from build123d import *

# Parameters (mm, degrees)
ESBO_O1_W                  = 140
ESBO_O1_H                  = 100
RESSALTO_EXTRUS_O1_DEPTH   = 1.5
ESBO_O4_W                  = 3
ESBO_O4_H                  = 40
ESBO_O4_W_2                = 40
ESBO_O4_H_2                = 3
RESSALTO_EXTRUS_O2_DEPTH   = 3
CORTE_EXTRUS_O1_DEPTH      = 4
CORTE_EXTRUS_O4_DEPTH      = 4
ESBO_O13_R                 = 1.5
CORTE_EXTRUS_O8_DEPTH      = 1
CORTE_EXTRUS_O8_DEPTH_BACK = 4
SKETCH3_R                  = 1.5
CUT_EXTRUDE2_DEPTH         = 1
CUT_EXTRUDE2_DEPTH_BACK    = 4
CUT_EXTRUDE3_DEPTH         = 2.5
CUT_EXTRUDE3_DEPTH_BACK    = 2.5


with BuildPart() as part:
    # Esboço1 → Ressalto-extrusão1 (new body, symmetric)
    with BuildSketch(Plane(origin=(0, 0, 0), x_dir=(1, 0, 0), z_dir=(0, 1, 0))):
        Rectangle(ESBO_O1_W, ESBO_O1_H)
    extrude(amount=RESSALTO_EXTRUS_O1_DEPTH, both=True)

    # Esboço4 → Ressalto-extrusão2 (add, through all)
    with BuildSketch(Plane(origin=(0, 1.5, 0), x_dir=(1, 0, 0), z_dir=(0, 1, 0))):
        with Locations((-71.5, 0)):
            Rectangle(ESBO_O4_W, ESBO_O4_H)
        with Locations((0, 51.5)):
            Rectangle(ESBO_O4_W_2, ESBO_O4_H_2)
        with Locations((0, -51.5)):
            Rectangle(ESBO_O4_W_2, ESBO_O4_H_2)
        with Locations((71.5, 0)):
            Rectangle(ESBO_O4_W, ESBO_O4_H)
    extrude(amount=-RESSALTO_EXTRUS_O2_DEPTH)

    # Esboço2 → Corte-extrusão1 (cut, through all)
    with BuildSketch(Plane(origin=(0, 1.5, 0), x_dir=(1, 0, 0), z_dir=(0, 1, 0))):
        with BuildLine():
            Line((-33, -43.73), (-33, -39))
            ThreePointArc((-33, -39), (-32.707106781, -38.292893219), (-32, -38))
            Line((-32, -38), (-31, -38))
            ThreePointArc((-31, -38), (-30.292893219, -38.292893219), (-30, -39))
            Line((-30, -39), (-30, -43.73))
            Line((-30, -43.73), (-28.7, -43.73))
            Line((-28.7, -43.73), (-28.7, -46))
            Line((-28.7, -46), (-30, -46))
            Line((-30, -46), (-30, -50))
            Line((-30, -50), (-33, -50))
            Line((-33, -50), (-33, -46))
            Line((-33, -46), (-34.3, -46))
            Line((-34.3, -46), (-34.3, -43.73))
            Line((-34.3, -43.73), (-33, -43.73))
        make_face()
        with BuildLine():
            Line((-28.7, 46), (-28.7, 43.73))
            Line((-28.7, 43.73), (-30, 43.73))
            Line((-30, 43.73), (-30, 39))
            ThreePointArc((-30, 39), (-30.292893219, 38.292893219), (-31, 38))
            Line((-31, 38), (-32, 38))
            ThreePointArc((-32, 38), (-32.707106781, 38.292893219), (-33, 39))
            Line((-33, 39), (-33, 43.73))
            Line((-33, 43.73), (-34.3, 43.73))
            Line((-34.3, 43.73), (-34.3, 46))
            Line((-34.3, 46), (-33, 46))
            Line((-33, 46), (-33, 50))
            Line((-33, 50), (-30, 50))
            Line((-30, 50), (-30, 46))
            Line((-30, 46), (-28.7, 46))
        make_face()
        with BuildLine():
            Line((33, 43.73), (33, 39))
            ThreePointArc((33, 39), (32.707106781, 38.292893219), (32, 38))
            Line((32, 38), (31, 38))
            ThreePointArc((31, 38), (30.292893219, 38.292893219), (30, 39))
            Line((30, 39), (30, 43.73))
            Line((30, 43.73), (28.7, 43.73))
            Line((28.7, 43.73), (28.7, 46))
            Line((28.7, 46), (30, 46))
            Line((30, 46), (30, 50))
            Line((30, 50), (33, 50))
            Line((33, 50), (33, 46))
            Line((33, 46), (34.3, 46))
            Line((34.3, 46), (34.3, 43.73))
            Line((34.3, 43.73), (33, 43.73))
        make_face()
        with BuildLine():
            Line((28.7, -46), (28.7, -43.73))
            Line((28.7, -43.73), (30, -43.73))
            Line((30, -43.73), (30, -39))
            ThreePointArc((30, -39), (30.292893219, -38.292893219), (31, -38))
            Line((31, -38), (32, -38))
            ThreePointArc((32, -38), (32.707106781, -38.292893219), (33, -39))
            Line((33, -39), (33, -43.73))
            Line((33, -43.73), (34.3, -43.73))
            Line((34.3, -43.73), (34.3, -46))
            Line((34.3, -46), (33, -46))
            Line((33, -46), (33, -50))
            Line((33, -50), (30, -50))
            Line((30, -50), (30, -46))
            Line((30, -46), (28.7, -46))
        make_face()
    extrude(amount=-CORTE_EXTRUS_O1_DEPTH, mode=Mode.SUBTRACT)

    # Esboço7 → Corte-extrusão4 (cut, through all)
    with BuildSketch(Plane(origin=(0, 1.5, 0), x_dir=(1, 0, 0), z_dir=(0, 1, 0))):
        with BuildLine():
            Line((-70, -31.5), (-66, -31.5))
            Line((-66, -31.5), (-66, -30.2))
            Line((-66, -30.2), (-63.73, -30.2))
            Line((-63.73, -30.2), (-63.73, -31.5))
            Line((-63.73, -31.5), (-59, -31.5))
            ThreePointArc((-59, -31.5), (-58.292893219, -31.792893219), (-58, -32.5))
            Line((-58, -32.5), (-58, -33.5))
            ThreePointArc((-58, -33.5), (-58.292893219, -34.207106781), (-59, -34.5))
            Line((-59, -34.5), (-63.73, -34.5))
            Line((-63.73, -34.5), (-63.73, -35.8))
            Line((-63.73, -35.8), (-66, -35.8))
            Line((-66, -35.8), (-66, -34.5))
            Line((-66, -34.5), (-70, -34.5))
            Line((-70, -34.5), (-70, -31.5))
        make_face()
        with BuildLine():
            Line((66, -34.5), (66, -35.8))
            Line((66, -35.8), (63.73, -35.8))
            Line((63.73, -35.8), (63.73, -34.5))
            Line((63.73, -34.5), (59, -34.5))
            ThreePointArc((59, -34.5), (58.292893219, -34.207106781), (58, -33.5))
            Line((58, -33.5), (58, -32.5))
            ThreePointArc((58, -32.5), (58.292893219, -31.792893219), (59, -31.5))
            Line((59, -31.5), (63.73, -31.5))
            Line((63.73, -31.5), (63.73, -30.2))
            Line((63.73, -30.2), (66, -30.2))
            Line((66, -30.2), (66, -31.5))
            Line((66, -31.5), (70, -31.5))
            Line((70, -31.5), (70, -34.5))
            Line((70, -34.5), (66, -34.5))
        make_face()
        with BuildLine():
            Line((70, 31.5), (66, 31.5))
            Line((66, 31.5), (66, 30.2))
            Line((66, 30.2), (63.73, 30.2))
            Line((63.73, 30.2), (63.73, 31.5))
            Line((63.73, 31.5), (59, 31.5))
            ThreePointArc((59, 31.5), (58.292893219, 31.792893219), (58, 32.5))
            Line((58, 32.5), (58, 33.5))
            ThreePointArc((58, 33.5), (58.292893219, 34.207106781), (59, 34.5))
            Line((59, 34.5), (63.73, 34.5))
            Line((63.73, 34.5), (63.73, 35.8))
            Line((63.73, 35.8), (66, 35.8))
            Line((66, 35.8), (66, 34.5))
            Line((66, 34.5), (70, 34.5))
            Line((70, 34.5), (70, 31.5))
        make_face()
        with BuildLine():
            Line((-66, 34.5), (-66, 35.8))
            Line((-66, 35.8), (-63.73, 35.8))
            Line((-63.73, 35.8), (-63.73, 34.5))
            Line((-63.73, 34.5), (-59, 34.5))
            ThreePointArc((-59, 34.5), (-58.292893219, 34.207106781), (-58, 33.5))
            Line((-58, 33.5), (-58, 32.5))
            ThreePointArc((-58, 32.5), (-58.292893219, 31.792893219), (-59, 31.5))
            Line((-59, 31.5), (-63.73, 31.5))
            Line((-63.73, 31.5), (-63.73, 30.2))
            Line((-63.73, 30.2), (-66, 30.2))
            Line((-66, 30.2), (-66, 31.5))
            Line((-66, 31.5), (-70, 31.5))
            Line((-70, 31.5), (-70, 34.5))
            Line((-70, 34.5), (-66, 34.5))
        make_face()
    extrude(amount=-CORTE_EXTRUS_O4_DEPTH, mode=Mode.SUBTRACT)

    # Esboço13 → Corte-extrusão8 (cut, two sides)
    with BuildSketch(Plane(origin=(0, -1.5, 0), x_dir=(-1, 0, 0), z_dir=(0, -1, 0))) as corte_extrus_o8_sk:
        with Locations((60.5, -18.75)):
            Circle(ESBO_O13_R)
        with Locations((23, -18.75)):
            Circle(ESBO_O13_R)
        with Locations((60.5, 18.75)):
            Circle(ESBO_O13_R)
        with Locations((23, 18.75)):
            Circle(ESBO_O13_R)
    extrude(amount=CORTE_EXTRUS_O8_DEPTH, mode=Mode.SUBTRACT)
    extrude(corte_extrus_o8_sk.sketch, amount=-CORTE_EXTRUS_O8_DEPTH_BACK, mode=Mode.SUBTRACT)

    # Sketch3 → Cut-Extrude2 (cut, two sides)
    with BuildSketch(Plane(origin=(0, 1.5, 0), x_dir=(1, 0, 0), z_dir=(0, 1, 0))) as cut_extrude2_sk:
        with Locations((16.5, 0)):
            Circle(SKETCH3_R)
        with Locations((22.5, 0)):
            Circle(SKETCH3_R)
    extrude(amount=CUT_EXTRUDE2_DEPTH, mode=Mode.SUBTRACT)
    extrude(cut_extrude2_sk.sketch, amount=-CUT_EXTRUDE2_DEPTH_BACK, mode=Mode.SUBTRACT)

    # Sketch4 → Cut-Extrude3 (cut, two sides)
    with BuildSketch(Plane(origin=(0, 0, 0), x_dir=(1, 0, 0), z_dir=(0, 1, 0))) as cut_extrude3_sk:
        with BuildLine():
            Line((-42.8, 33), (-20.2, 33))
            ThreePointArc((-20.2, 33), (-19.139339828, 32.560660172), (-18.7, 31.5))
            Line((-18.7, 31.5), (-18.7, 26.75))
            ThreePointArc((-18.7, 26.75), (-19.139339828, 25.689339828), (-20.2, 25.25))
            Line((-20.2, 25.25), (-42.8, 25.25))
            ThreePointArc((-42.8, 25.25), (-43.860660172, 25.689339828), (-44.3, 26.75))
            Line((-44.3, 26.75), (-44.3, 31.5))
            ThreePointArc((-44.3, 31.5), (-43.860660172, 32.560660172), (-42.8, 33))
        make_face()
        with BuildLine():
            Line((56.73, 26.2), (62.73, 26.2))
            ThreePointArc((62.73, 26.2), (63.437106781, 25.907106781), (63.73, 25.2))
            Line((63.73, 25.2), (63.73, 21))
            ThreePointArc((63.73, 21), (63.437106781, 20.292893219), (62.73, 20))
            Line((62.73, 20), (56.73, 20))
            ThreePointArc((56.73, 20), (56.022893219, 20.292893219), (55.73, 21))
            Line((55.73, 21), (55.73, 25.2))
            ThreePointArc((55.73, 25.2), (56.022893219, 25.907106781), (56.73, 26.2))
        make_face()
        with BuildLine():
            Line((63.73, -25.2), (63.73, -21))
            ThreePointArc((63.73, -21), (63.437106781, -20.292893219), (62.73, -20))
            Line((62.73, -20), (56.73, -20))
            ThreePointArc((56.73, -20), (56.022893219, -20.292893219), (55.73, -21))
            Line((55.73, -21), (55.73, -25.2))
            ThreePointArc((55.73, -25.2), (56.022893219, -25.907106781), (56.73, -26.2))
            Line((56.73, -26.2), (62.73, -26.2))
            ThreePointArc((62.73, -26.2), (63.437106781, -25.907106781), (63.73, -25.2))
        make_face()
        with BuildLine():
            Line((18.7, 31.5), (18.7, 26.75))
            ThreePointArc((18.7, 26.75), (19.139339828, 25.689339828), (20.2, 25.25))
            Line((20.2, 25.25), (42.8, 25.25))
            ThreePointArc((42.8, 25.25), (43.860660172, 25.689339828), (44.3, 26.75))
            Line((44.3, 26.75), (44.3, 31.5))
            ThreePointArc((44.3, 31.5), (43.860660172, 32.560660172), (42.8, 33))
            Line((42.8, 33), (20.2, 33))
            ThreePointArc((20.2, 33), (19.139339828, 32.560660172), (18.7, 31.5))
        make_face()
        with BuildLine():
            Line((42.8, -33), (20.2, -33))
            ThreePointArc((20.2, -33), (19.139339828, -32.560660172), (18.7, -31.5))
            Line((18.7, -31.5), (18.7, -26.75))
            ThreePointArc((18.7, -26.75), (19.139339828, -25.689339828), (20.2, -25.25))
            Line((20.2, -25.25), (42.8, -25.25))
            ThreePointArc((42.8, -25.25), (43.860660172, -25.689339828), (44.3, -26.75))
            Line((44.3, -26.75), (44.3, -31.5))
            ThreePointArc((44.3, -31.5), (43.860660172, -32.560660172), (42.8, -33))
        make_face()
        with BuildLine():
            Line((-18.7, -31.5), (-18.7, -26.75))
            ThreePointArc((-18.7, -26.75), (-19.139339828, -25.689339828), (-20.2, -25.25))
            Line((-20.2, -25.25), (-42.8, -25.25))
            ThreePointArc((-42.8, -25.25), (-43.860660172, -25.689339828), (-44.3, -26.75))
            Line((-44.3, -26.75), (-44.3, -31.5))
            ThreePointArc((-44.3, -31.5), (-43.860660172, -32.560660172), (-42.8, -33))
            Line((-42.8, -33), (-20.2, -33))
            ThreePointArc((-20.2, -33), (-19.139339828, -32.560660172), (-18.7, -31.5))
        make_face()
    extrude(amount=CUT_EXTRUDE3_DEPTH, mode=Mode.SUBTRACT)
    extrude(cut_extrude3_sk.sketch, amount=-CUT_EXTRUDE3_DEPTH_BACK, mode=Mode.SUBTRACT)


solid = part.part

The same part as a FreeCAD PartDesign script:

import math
import FreeCAD as App
import Part
import Sketcher

V = App.Vector
Q = App.Units.Quantity

doc = App.newDocument("Part")
params = doc.addObject("Spreadsheet::Sheet", "Params")
for row, (alias, value) in enumerate([
    ("sketch1_width", "140 mm"),
    ("sketch1_height", "100 mm"),
    ("pad1_length", "3 mm"),
    ("sketch2_width", "3 mm"),
    ("sketch2_width2", "40 mm"),
    ("sketch3_radius", "1 mm"),
    ("sketch3_width", "3 mm"),
    ("sketch3_height", "4 mm"),
    ("sketch3_width2", "1.3 mm"),
    ("sketch3_height2", "4.73 mm"),
    ("sketch4_radius", "1 mm"),
    ("sketch4_width", "4 mm"),
    ("sketch4_height", "3 mm"),
    ("sketch4_height2", "1.3 mm"),
    ("sketch4_width2", "2.27 mm"),
    ("sketch5_diameter", "3 mm"),
    ("sketch6_diameter", "3 mm"),
    ("sketch7_radius", "1 mm"),
    ("sketch7_radius2", "1.5 mm"),
    ("sketch7_width", "6 mm"),
    ("sketch7_width2", "22.6 mm"),
    ("sketch7_height", "4.2 mm"),
], start=1):
    params.set(f"A{row}", alias)
    params.set(f"B{row}", "=" + value)
    params.setAlias(f"B{row}", alias)

body = doc.addObject("PartDesign::Body", "Body")

sketch1 = body.newObject("Sketcher::SketchObject", "Sketch")
sketch1.AttachmentSupport = (doc.getObject("XZ_Plane"), [""])
sketch1.MapMode = "FlatFace"
sketch1.addGeometry([
    Part.LineSegment(V(-70, -50, 0), V(-70, 50, 0)),
    Part.LineSegment(V(-70, 50, 0), V(70, 50, 0)),
    Part.LineSegment(V(70, 50, 0), V(70, -50, 0)),
    Part.LineSegment(V(70, -50, 0), V(-70, -50, 0)),
], False)
sketch1.addConstraint([
    Sketcher.Constraint("Coincident", 0, 2, 1, 1),
    Sketcher.Constraint("Coincident", 1, 2, 2, 1),
    Sketcher.Constraint("Coincident", 2, 2, 3, 1),
    Sketcher.Constraint("Coincident", 3, 2, 0, 1),
    Sketcher.Constraint("Vertical", 0),
    Sketcher.Constraint("Horizontal", 1),
    Sketcher.Constraint("Vertical", 2),
    Sketcher.Constraint("Horizontal", 3),
    Sketcher.Constraint("Symmetric", 0, 2, 2, 2, -1, 1),
    Sketcher.Constraint("DistanceX", 1, 1, 1, 2, Q("140 mm")),
    Sketcher.Constraint("DistanceY", 0, 1, 0, 2, Q("100 mm")),
])
sketch1.setExpression("Constraints[9]", "Params.sketch1_width")
sketch1.setExpression("Constraints[10]", "Params.sketch1_height")
pad1 = body.newObject("PartDesign::Pad", "Pad")
pad1.Profile = sketch1
pad1.setExpression("Length", "Params.pad1_length")
pad1.Midplane = True

sketch2 = body.newObject("Sketcher::SketchObject", "Sketch001")
sketch2.AttachmentSupport = (doc.getObject("XZ_Plane"), [""])
sketch2.MapMode = "FlatFace"
sketch2.AttachmentOffset = App.Placement(V(0, 0, -1.5), App.Rotation())
sketch2.addGeometry([
    Part.LineSegment(V(-73, -20, 0), V(-73, 20, 0)),
    Part.LineSegment(V(-73, 20, 0), V(-70, 20, 0)),
    Part.LineSegment(V(-70, 20, 0), V(-70, -20, 0)),
    Part.LineSegment(V(-70, -20, 0), V(-73, -20, 0)),
    Part.LineSegment(V(-20, -53, 0), V(-20, -50, 0)),
    Part.LineSegment(V(-20, -50, 0), V(20, -50, 0)),
    Part.LineSegment(V(20, -50, 0), V(20, -53, 0)),
    Part.LineSegment(V(20, -53, 0), V(-20, -53, 0)),
    Part.LineSegment(V(-20, 50, 0), V(-20, 53, 0)),
    Part.LineSegment(V(-20, 53, 0), V(20, 53, 0)),
    Part.LineSegment(V(20, 53, 0), V(20, 50, 0)),
    Part.LineSegment(V(20, 50, 0), V(-20, 50, 0)),
    Part.LineSegment(V(70, -20, 0), V(70, 20, 0)),
    Part.LineSegment(V(70, 20, 0), V(73, 20, 0)),
    Part.LineSegment(V(73, 20, 0), V(73, -20, 0)),
    Part.LineSegment(V(73, -20, 0), V(70, -20, 0)),
], False)
sketch2.addConstraint([
    Sketcher.Constraint("Coincident", 0, 2, 1, 1),
    Sketcher.Constraint("Coincident", 1, 2, 2, 1),
    Sketcher.Constraint("Coincident", 2, 2, 3, 1),
    Sketcher.Constraint("Coincident", 3, 2, 0, 1),
    Sketcher.Constraint("Coincident", 4, 2, 5, 1),
    Sketcher.Constraint("Coincident", 5, 2, 6, 1),
    Sketcher.Constraint("Coincident", 6, 2, 7, 1),
    Sketcher.Constraint("Coincident", 7, 2, 4, 1),
    Sketcher.Constraint("Coincident", 8, 2, 9, 1),
    Sketcher.Constraint("Coincident", 9, 2, 10, 1),
    Sketcher.Constraint("Coincident", 10, 2, 11, 1),
    Sketcher.Constraint("Coincident", 11, 2, 8, 1),
    Sketcher.Constraint("Coincident", 12, 2, 13, 1),
    Sketcher.Constraint("Coincident", 13, 2, 14, 1),
    Sketcher.Constraint("Coincident", 14, 2, 15, 1),
    Sketcher.Constraint("Coincident", 15, 2, 12, 1),
    Sketcher.Constraint("Vertical", 0),
    Sketcher.Constraint("Horizontal", 1),
    Sketcher.Constraint("Vertical", 2),
    Sketcher.Constraint("Horizontal", 3),
    Sketcher.Constraint("Vertical", 4),
    Sketcher.Constraint("Horizontal", 5),
    Sketcher.Constraint("Vertical", 6),
    Sketcher.Constraint("Horizontal", 7),
    Sketcher.Constraint("Vertical", 8),
    Sketcher.Constraint("Horizontal", 9),
    Sketcher.Constraint("Vertical", 10),
    Sketcher.Constraint("Horizontal", 11),
    Sketcher.Constraint("Vertical", 12),
    Sketcher.Constraint("Horizontal", 13),
    Sketcher.Constraint("Vertical", 14),
    Sketcher.Constraint("Horizontal", 15),
    Sketcher.Constraint("Symmetric", 6, 2, 8, 2, -1, 1),
    Sketcher.Constraint("Symmetric", 4, 2, 10, 2, -1, 1),
    Sketcher.Constraint("Symmetric", 2, 2, 12, 2, -1, 1),
    Sketcher.Constraint("Symmetric", 0, 2, 14, 2, -1, 1),
    Sketcher.Constraint("Horizontal", 1, 2, 12, 2),
    Sketcher.Constraint("Vertical", 7, 2, 8, 2),
    Sketcher.Constraint("Equal", 11, 0),
    Sketcher.Constraint("Equal", 15, 4),
    Sketcher.Constraint("DistanceX", 1, 1, 1, 2, Q("3 mm")),
    Sketcher.Constraint("DistanceX", 5, 1, 5, 2, Q("40 mm")),
    Sketcher.Constraint("DistanceX", 0, 2, -1, 1, Q("73 mm")),
    Sketcher.Constraint("DistanceY", 4, 2, -1, 1, Q("50 mm")),
])
sketch2.setExpression("Constraints[40]", "Params.sketch2_width")
sketch2.setExpression("Constraints[41]", "Params.sketch2_width2")
pad2 = body.newObject("PartDesign::Pad", "Pad001")
pad2.Profile = sketch2
pad2.Type = "UpToLast"

sketch3 = body.newObject("Sketcher::SketchObject", "Sketch002")
sketch3.AttachmentSupport = (doc.getObject("XZ_Plane"), [""])
sketch3.MapMode = "FlatFace"
sketch3.AttachmentOffset = App.Placement(V(0, 0, -1.5), App.Rotation())
sketch3.addGeometry([
    Part.LineSegment(V(-33, 39, 0), V(-33, 43.7, 0)),
    Part.LineSegment(V(-33, 43.7, 0), V(-34.3, 43.7, 0)),
    Part.LineSegment(V(-34.3, 43.7, 0), V(-34.3, 46, 0)),
    Part.LineSegment(V(-34.3, 46, 0), V(-33, 46, 0)),
    Part.LineSegment(V(-33, 46, 0), V(-33, 50, 0)),
    Part.LineSegment(V(-33, 50, 0), V(-30, 50, 0)),
    Part.LineSegment(V(-30, 50, 0), V(-30, 46, 0)),
    Part.LineSegment(V(-30, 46, 0), V(-28.7, 46, 0)),
    Part.LineSegment(V(-28.7, 46, 0), V(-28.7, 43.7, 0)),
    Part.LineSegment(V(-28.7, 43.7, 0), V(-30, 43.7, 0)),
    Part.LineSegment(V(-30, 43.7, 0), V(-30, 39, 0)),
    Part.ArcOfCircle(Part.Circle(V(-31, 39, 0), V(0, 0, 1), 1), math.radians(-90), math.radians(0)),
    Part.LineSegment(V(-31, 38, 0), V(-32, 38, 0)),
    Part.ArcOfCircle(Part.Circle(V(-32, 39, 0), V(0, 0, 1), 1), math.radians(-180), math.radians(-90)),
    Part.LineSegment(V(-28.7, -43.7, 0), V(-28.7, -46, 0)),
    Part.LineSegment(V(-28.7, -46, 0), V(-30, -46, 0)),
    Part.LineSegment(V(-30, -46, 0), V(-30, -50, 0)),
    Part.LineSegment(V(-30, -50, 0), V(-33, -50, 0)),
    Part.LineSegment(V(-33, -50, 0), V(-33, -46, 0)),
    Part.LineSegment(V(-33, -46, 0), V(-34.3, -46, 0)),
    Part.LineSegment(V(-34.3, -46, 0), V(-34.3, -43.7, 0)),
    Part.LineSegment(V(-34.3, -43.7, 0), V(-33, -43.7, 0)),
    Part.LineSegment(V(-33, -43.7, 0), V(-33, -39, 0)),
    Part.ArcOfCircle(Part.Circle(V(-32, -39, 0), V(0, 0, 1), 1), math.radians(90), math.radians(180)),
    Part.LineSegment(V(-32, -38, 0), V(-31, -38, 0)),
    Part.ArcOfCircle(Part.Circle(V(-31, -39, 0), V(0, 0, 1), 1), math.radians(0), math.radians(90)),
    Part.LineSegment(V(-30, -39, 0), V(-30, -43.7, 0)),
    Part.LineSegment(V(-30, -43.7, 0), V(-28.7, -43.7, 0)),
    Part.LineSegment(V(33, -39, 0), V(33, -43.7, 0)),
    Part.LineSegment(V(33, -43.7, 0), V(34.3, -43.7, 0)),
    Part.LineSegment(V(34.3, -43.7, 0), V(34.3, -46, 0)),
    Part.LineSegment(V(34.3, -46, 0), V(33, -46, 0)),
    Part.LineSegment(V(33, -46, 0), V(33, -50, 0)),
    Part.LineSegment(V(33, -50, 0), V(30, -50, 0)),
    Part.LineSegment(V(30, -50, 0), V(30, -46, 0)),
    Part.LineSegment(V(30, -46, 0), V(28.7, -46, 0)),
    Part.LineSegment(V(28.7, -46, 0), V(28.7, -43.7, 0)),
    Part.LineSegment(V(28.7, -43.7, 0), V(30, -43.7, 0)),
    Part.LineSegment(V(30, -43.7, 0), V(30, -39, 0)),
    Part.ArcOfCircle(Part.Circle(V(31, -39, 0), V(0, 0, 1), 1), math.radians(90), math.radians(180)),
    Part.LineSegment(V(31, -38, 0), V(32, -38, 0)),
    Part.ArcOfCircle(Part.Circle(V(32, -39, 0), V(0, 0, 1), 1), math.radians(0), math.radians(90)),
    Part.LineSegment(V(28.7, 43.7, 0), V(28.7, 46, 0)),
    Part.LineSegment(V(28.7, 46, 0), V(30, 46, 0)),
    Part.LineSegment(V(30, 46, 0), V(30, 50, 0)),
    Part.LineSegment(V(30, 50, 0), V(33, 50, 0)),
    Part.LineSegment(V(33, 50, 0), V(33, 46, 0)),
    Part.LineSegment(V(33, 46, 0), V(34.3, 46, 0)),
    Part.LineSegment(V(34.3, 46, 0), V(34.3, 43.7, 0)),
    Part.LineSegment(V(34.3, 43.7, 0), V(33, 43.7, 0)),
    Part.LineSegment(V(33, 43.7, 0), V(33, 39, 0)),
    Part.ArcOfCircle(Part.Circle(V(32, 39, 0), V(0, 0, 1), 1), math.radians(-90), math.radians(0)),
    Part.LineSegment(V(32, 38, 0), V(31, 38, 0)),
    Part.ArcOfCircle(Part.Circle(V(31, 39, 0), V(0, 0, 1), 1), math.radians(-180), math.radians(-90)),
    Part.LineSegment(V(30, 39, 0), V(30, 43.7, 0)),
    Part.LineSegment(V(30, 43.7, 0), V(28.7, 43.7, 0)),
], False)
sketch3.addConstraint([
    Sketcher.Constraint("Coincident", 0, 2, 1, 1),
    Sketcher.Constraint("Coincident", 1, 2, 2, 1),
    Sketcher.Constraint("Coincident", 2, 2, 3, 1),
    Sketcher.Constraint("Coincident", 3, 2, 4, 1),
    Sketcher.Constraint("Coincident", 4, 2, 5, 1),
    Sketcher.Constraint("Coincident", 5, 2, 6, 1),
    Sketcher.Constraint("Coincident", 6, 2, 7, 1),
    Sketcher.Constraint("Coincident", 7, 2, 8, 1),
    Sketcher.Constraint("Coincident", 8, 2, 9, 1),
    Sketcher.Constraint("Coincident", 9, 2, 10, 1),
    Sketcher.Constraint("Tangent", 10, 2, 11, 2),
    Sketcher.Constraint("Tangent", 11, 1, 12, 1),
    Sketcher.Constraint("Tangent", 12, 2, 13, 2),
    Sketcher.Constraint("Tangent", 13, 1, 0, 1),
    Sketcher.Constraint("Coincident", 14, 2, 15, 1),
    Sketcher.Constraint("Coincident", 15, 2, 16, 1),
    Sketcher.Constraint("Coincident", 16, 2, 17, 1),
    Sketcher.Constraint("Coincident", 17, 2, 18, 1),
    Sketcher.Constraint("Coincident", 18, 2, 19, 1),
    Sketcher.Constraint("Coincident", 19, 2, 20, 1),
    Sketcher.Constraint("Coincident", 20, 2, 21, 1),
    Sketcher.Constraint("Coincident", 21, 2, 22, 1),
    Sketcher.Constraint("Tangent", 22, 2, 23, 2),
    Sketcher.Constraint("Tangent", 23, 1, 24, 1),
    Sketcher.Constraint("Tangent", 24, 2, 25, 2),
    Sketcher.Constraint("Tangent", 25, 1, 26, 1),
    Sketcher.Constraint("Coincident", 26, 2, 27, 1),
    Sketcher.Constraint("Coincident", 27, 2, 14, 1),
    Sketcher.Constraint("Coincident", 28, 2, 29, 1),
    Sketcher.Constraint("Coincident", 29, 2, 30, 1),
    Sketcher.Constraint("Coincident", 30, 2, 31, 1),
    Sketcher.Constraint("Coincident", 31, 2, 32, 1),
    Sketcher.Constraint("Coincident", 32, 2, 33, 1),
    Sketcher.Constraint("Coincident", 33, 2, 34, 1),
    Sketcher.Constraint("Coincident", 34, 2, 35, 1),
    Sketcher.Constraint("Coincident", 35, 2, 36, 1),
    Sketcher.Constraint("Coincident", 36, 2, 37, 1),
    Sketcher.Constraint("Coincident", 37, 2, 38, 1),
    Sketcher.Constraint("Tangent", 38, 2, 39, 2),
    Sketcher.Constraint("Tangent", 39, 1, 40, 1),
    Sketcher.Constraint("Tangent", 40, 2, 41, 2),
    Sketcher.Constraint("Tangent", 41, 1, 28, 1),
    Sketcher.Constraint("Coincident", 42, 2, 43, 1),
    Sketcher.Constraint("Coincident", 43, 2, 44, 1),
    Sketcher.Constraint("Coincident", 44, 2, 45, 1),
    Sketcher.Constraint("Coincident", 45, 2, 46, 1),
    Sketcher.Constraint("Coincident", 46, 2, 47, 1),
    Sketcher.Constraint("Coincident", 47, 2, 48, 1),
    Sketcher.Constraint("Coincident", 48, 2, 49, 1),
    Sketcher.Constraint("Coincident", 49, 2, 50, 1),
    Sketcher.Constraint("Tangent", 50, 2, 51, 2),
    Sketcher.Constraint("Tangent", 51, 1, 52, 1),
    Sketcher.Constraint("Tangent", 52, 2, 53, 2),
    Sketcher.Constraint("Tangent", 53, 1, 54, 1),
    Sketcher.Constraint("Coincident", 54, 2, 55, 1),
    Sketcher.Constraint("Coincident", 55, 2, 42, 1),
    Sketcher.Constraint("Vertical", 0),
    Sketcher.Constraint("Horizontal", 1),
    Sketcher.Constraint("Vertical", 2),
    Sketcher.Constraint("Horizontal", 3),
    Sketcher.Constraint("Vertical", 4),
    Sketcher.Constraint("Horizontal", 5),
    Sketcher.Constraint("Vertical", 6),
    Sketcher.Constraint("Horizontal", 7),
    Sketcher.Constraint("Vertical", 8),
    Sketcher.Constraint("Horizontal", 9),
    Sketcher.Constraint("Vertical", 10),
    Sketcher.Constraint("Horizontal", 12),
    Sketcher.Constraint("Vertical", 14),
    Sketcher.Constraint("Horizontal", 15),
    Sketcher.Constraint("Vertical", 16),
    Sketcher.Constraint("Horizontal", 17),
    Sketcher.Constraint("Vertical", 18),
    Sketcher.Constraint("Horizontal", 19),
    Sketcher.Constraint("Vertical", 20),
    Sketcher.Constraint("Horizontal", 21),
    Sketcher.Constraint("Vertical", 22),
    Sketcher.Constraint("Horizontal", 24),
    Sketcher.Constraint("Vertical", 26),
    Sketcher.Constraint("Horizontal", 27),
    Sketcher.Constraint("Vertical", 28),
    Sketcher.Constraint("Horizontal", 29),
    Sketcher.Constraint("Vertical", 30),
    Sketcher.Constraint("Horizontal", 31),
    Sketcher.Constraint("Vertical", 32),
    Sketcher.Constraint("Horizontal", 33),
    Sketcher.Constraint("Vertical", 34),
    Sketcher.Constraint("Horizontal", 35),
    Sketcher.Constraint("Vertical", 36),
    Sketcher.Constraint("Horizontal", 37),
    Sketcher.Constraint("Vertical", 38),
    Sketcher.Constraint("Horizontal", 40),
    Sketcher.Constraint("Vertical", 42),
    Sketcher.Constraint("Horizontal", 43),
    Sketcher.Constraint("Vertical", 44),
    Sketcher.Constraint("Horizontal", 45),
    Sketcher.Constraint("Vertical", 46),
    Sketcher.Constraint("Horizontal", 47),
    Sketcher.Constraint("Vertical", 48),
    Sketcher.Constraint("Horizontal", 49),
    Sketcher.Constraint("Vertical", 50),
    Sketcher.Constraint("Horizontal", 52),
    Sketcher.Constraint("Vertical", 54),
    Sketcher.Constraint("Horizontal", 55),
    Sketcher.Constraint("Equal", 11, 13),
    Sketcher.Constraint("Equal", 13, 23),
    Sketcher.Constraint("Equal", 23, 25),
    Sketcher.Constraint("Equal", 25, 39),
    Sketcher.Constraint("Equal", 39, 41),
    Sketcher.Constraint("Equal", 41, 51),
    Sketcher.Constraint("Equal", 51, 53),
    Sketcher.Constraint("Symmetric", 11, 3, 39, 3, -1, 1),
    Sketcher.Constraint("Symmetric", 23, 3, 51, 3, -1, 1),
    Sketcher.Constraint("Symmetric", 0, 2, 28, 2, -1, 1),
    Sketcher.Constraint("Symmetric", 2, 2, 30, 2, -1, 1),
    Sketcher.Constraint("Symmetric", 4, 2, 32, 2, -1, 1),
    Sketcher.Constraint("Symmetric", 6, 2, 34, 2, -1, 1),
    Sketcher.Constraint("Symmetric", 8, 2, 36, 2, -1, 1),
    Sketcher.Constraint("Symmetric", 14, 2, 42, 2, -1, 1),
    Sketcher.Constraint("Symmetric", 16, 2, 44, 2, -1, 1),
    Sketcher.Constraint("Symmetric", 18, 2, 46, 2, -1, 1),
    Sketcher.Constraint("Symmetric", 20, 2, 48, 2, -1, 1),
    Sketcher.Constraint("Symmetric", 26, 2, 54, 2, -1, 1),
    Sketcher.Constraint("Symmetric", 25, 3, 39, 3, -2),
    Sketcher.Constraint("Symmetric", 21, 2, 28, 2, -2),
    Sketcher.Constraint("Symmetric", 19, 2, 30, 2, -2),
    Sketcher.Constraint("Symmetric", 17, 2, 32, 2, -2),
    Sketcher.Constraint("Symmetric", 15, 2, 34, 2, -2),
    Sketcher.Constraint("Symmetric", 27, 2, 36, 2, -2),
    Sketcher.Constraint("Horizontal", 3, 2, 6, 2),
    Sketcher.Constraint("Horizontal", 1, 2, 8, 2),
    Sketcher.Constraint("Vertical", 0, 2, 3, 2),
    Sketcher.Constraint("Vertical", 6, 2, 9, 2),
    Sketcher.Constraint("Equal", 3, 7),
    Sketcher.Constraint("Radius", 11, Q("1 mm")),
    Sketcher.Constraint("DistanceX", 5, 1, 5, 2, Q("3 mm")),
    Sketcher.Constraint("DistanceY", 4, 1, 4, 2, Q("4 mm")),
    Sketcher.Constraint("DistanceX", 1, 2, 1, 1, Q("1.3 mm")),
    Sketcher.Constraint("DistanceX", 11, 3, -1, 1, Q("31 mm")),
    Sketcher.Constraint("DistanceY", -1, 1, 11, 3, Q("39 mm")),
    Sketcher.Constraint("DistanceY", -1, 1, 2, 2, Q("46 mm")),
    Sketcher.Constraint("DistanceY", 0, 1, 0, 2, Q("4.73 mm")),
])
sketch3.setExpression("Constraints[134]", "Params.sketch3_radius")
sketch3.setExpression("Constraints[135]", "Params.sketch3_width")
sketch3.setExpression("Constraints[136]", "Params.sketch3_height")
sketch3.setExpression("Constraints[137]", "Params.sketch3_width2")
sketch3.setExpression("Constraints[141]", "Params.sketch3_height2")
pocket1 = body.newObject("PartDesign::Pocket", "Pocket")
pocket1.Profile = sketch3
pocket1.Type = "ThroughAll"
pocket1.Reversed = True

sketch4 = body.newObject("Sketcher::SketchObject", "Sketch003")
sketch4.AttachmentSupport = (doc.getObject("XZ_Plane"), [""])
sketch4.MapMode = "FlatFace"
sketch4.AttachmentOffset = App.Placement(V(0, 0, -1.5), App.Rotation())
sketch4.addGeometry([
    Part.LineSegment(V(-66, 31.5, 0), V(-70, 31.5, 0)),
    Part.LineSegment(V(-70, 31.5, 0), V(-70, 34.5, 0)),
    Part.LineSegment(V(-70, 34.5, 0), V(-66, 34.5, 0)),
    Part.LineSegment(V(-66, 34.5, 0), V(-66, 35.8, 0)),
    Part.LineSegment(V(-66, 35.8, 0), V(-63.7, 35.8, 0)),
    Part.LineSegment(V(-63.7, 35.8, 0), V(-63.7, 34.5, 0)),
    Part.LineSegment(V(-63.7, 34.5, 0), V(-59, 34.5, 0)),
    Part.ArcOfCircle(Part.Circle(V(-59, 33.5, 0), V(0, 0, 1), 1), math.radians(0), math.radians(90)),
    Part.LineSegment(V(-58, 33.5, 0), V(-58, 32.5, 0)),
    Part.ArcOfCircle(Part.Circle(V(-59, 32.5, 0), V(0, 0, 1), 1), math.radians(-90), math.radians(0)),
    Part.LineSegment(V(-59, 31.5, 0), V(-63.7, 31.5, 0)),
    Part.LineSegment(V(-63.7, 31.5, 0), V(-63.7, 30.2, 0)),
    Part.LineSegment(V(-63.7, 30.2, 0), V(-66, 30.2, 0)),
    Part.LineSegment(V(-66, 30.2, 0), V(-66, 31.5, 0)),
    Part.LineSegment(V(66, 35.8, 0), V(66, 34.5, 0)),
    Part.LineSegment(V(66, 34.5, 0), V(70, 34.5, 0)),
    Part.LineSegment(V(70, 34.5, 0), V(70, 31.5, 0)),
    Part.LineSegment(V(70, 31.5, 0), V(66, 31.5, 0)),
    Part.LineSegment(V(66, 31.5, 0), V(66, 30.2, 0)),
    Part.LineSegment(V(66, 30.2, 0), V(63.7, 30.2, 0)),
    Part.LineSegment(V(63.7, 30.2, 0), V(63.7, 31.5, 0)),
    Part.LineSegment(V(63.7, 31.5, 0), V(59, 31.5, 0)),
    Part.ArcOfCircle(Part.Circle(V(59, 32.5, 0), V(0, 0, 1), 1), math.radians(-180), math.radians(-90)),
    Part.LineSegment(V(58, 32.5, 0), V(58, 33.5, 0)),
    Part.ArcOfCircle(Part.Circle(V(59, 33.5, 0), V(0, 0, 1), 1), math.radians(90), math.radians(180)),
    Part.LineSegment(V(59, 34.5, 0), V(63.7, 34.5, 0)),
    Part.LineSegment(V(63.7, 34.5, 0), V(63.7, 35.8, 0)),
    Part.LineSegment(V(63.7, 35.8, 0), V(66, 35.8, 0)),
    Part.LineSegment(V(66, -31.5, 0), V(70, -31.5, 0)),
    Part.LineSegment(V(70, -31.5, 0), V(70, -34.5, 0)),
    Part.LineSegment(V(70, -34.5, 0), V(66, -34.5, 0)),
    Part.LineSegment(V(66, -34.5, 0), V(66, -35.8, 0)),
    Part.LineSegment(V(66, -35.8, 0), V(63.7, -35.8, 0)),
    Part.LineSegment(V(63.7, -35.8, 0), V(63.7, -34.5, 0)),
    Part.LineSegment(V(63.7, -34.5, 0), V(59, -34.5, 0)),
    Part.ArcOfCircle(Part.Circle(V(59, -33.5, 0), V(0, 0, 1), 1), math.radians(-180), math.radians(-90)),
    Part.LineSegment(V(58, -33.5, 0), V(58, -32.5, 0)),
    Part.ArcOfCircle(Part.Circle(V(59, -32.5, 0), V(0, 0, 1), 1), math.radians(90), math.radians(180)),
    Part.LineSegment(V(59, -31.5, 0), V(63.7, -31.5, 0)),
    Part.LineSegment(V(63.7, -31.5, 0), V(63.7, -30.2, 0)),
    Part.LineSegment(V(63.7, -30.2, 0), V(66, -30.2, 0)),
    Part.LineSegment(V(66, -30.2, 0), V(66, -31.5, 0)),
    Part.LineSegment(V(-66, -35.8, 0), V(-66, -34.5, 0)),
    Part.LineSegment(V(-66, -34.5, 0), V(-70, -34.5, 0)),
    Part.LineSegment(V(-70, -34.5, 0), V(-70, -31.5, 0)),
    Part.LineSegment(V(-70, -31.5, 0), V(-66, -31.5, 0)),
    Part.LineSegment(V(-66, -31.5, 0), V(-66, -30.2, 0)),
    Part.LineSegment(V(-66, -30.2, 0), V(-63.7, -30.2, 0)),
    Part.LineSegment(V(-63.7, -30.2, 0), V(-63.7, -31.5, 0)),
    Part.LineSegment(V(-63.7, -31.5, 0), V(-59, -31.5, 0)),
    Part.ArcOfCircle(Part.Circle(V(-59, -32.5, 0), V(0, 0, 1), 1), math.radians(0), math.radians(90)),
    Part.LineSegment(V(-58, -32.5, 0), V(-58, -33.5, 0)),
    Part.ArcOfCircle(Part.Circle(V(-59, -33.5, 0), V(0, 0, 1), 1), math.radians(-90), math.radians(0)),
    Part.LineSegment(V(-59, -34.5, 0), V(-63.7, -34.5, 0)),
    Part.LineSegment(V(-63.7, -34.5, 0), V(-63.7, -35.8, 0)),
    Part.LineSegment(V(-63.7, -35.8, 0), V(-66, -35.8, 0)),
], False)
sketch4.addConstraint([
    Sketcher.Constraint("Coincident", 0, 2, 1, 1),
    Sketcher.Constraint("Coincident", 1, 2, 2, 1),
    Sketcher.Constraint("Coincident", 2, 2, 3, 1),
    Sketcher.Constraint("Coincident", 3, 2, 4, 1),
    Sketcher.Constraint("Coincident", 4, 2, 5, 1),
    Sketcher.Constraint("Coincident", 5, 2, 6, 1),
    Sketcher.Constraint("Tangent", 6, 2, 7, 2),
    Sketcher.Constraint("Tangent", 7, 1, 8, 1),
    Sketcher.Constraint("Tangent", 8, 2, 9, 2),
    Sketcher.Constraint("Tangent", 9, 1, 10, 1),
    Sketcher.Constraint("Coincident", 10, 2, 11, 1),
    Sketcher.Constraint("Coincident", 11, 2, 12, 1),
    Sketcher.Constraint("Coincident", 12, 2, 13, 1),
    Sketcher.Constraint("Coincident", 13, 2, 0, 1),
    Sketcher.Constraint("Coincident", 14, 2, 15, 1),
    Sketcher.Constraint("Coincident", 15, 2, 16, 1),
    Sketcher.Constraint("Coincident", 16, 2, 17, 1),
    Sketcher.Constraint("Coincident", 17, 2, 18, 1),
    Sketcher.Constraint("Coincident", 18, 2, 19, 1),
    Sketcher.Constraint("Coincident", 19, 2, 20, 1),
    Sketcher.Constraint("Coincident", 20, 2, 21, 1),
    Sketcher.Constraint("Tangent", 21, 2, 22, 2),
    Sketcher.Constraint("Tangent", 22, 1, 23, 1),
    Sketcher.Constraint("Tangent", 23, 2, 24, 2),
    Sketcher.Constraint("Tangent", 24, 1, 25, 1),
    Sketcher.Constraint("Coincident", 25, 2, 26, 1),
    Sketcher.Constraint("Coincident", 26, 2, 27, 1),
    Sketcher.Constraint("Coincident", 27, 2, 14, 1),
    Sketcher.Constraint("Coincident", 28, 2, 29, 1),
    Sketcher.Constraint("Coincident", 29, 2, 30, 1),
    Sketcher.Constraint("Coincident", 30, 2, 31, 1),
    Sketcher.Constraint("Coincident", 31, 2, 32, 1),
    Sketcher.Constraint("Coincident", 32, 2, 33, 1),
    Sketcher.Constraint("Coincident", 33, 2, 34, 1),
    Sketcher.Constraint("Tangent", 34, 2, 35, 2),
    Sketcher.Constraint("Tangent", 35, 1, 36, 1),
    Sketcher.Constraint("Tangent", 36, 2, 37, 2),
    Sketcher.Constraint("Tangent", 37, 1, 38, 1),
    Sketcher.Constraint("Coincident", 38, 2, 39, 1),
    Sketcher.Constraint("Coincident", 39, 2, 40, 1),
    Sketcher.Constraint("Coincident", 40, 2, 41, 1),
    Sketcher.Constraint("Coincident", 41, 2, 28, 1),
    Sketcher.Constraint("Coincident", 42, 2, 43, 1),
    Sketcher.Constraint("Coincident", 43, 2, 44, 1),
    Sketcher.Constraint("Coincident", 44, 2, 45, 1),
    Sketcher.Constraint("Coincident", 45, 2, 46, 1),
    Sketcher.Constraint("Coincident", 46, 2, 47, 1),
    Sketcher.Constraint("Coincident", 47, 2, 48, 1),
    Sketcher.Constraint("Coincident", 48, 2, 49, 1),
    Sketcher.Constraint("Tangent", 49, 2, 50, 2),
    Sketcher.Constraint("Tangent", 50, 1, 51, 1),
    Sketcher.Constraint("Tangent", 51, 2, 52, 2),
    Sketcher.Constraint("Tangent", 52, 1, 53, 1),
    Sketcher.Constraint("Coincident", 53, 2, 54, 1),
    Sketcher.Constraint("Coincident", 54, 2, 55, 1),
    Sketcher.Constraint("Coincident", 55, 2, 42, 1),
    Sketcher.Constraint("Horizontal", 0),
    Sketcher.Constraint("Vertical", 1),
    Sketcher.Constraint("Horizontal", 2),
    Sketcher.Constraint("Vertical", 3),
    Sketcher.Constraint("Horizontal", 4),
    Sketcher.Constraint("Vertical", 5),
    Sketcher.Constraint("Horizontal", 6),
    Sketcher.Constraint("Vertical", 8),
    Sketcher.Constraint("Horizontal", 10),
    Sketcher.Constraint("Vertical", 11),
    Sketcher.Constraint("Horizontal", 12),
    Sketcher.Constraint("Vertical", 13),
    Sketcher.Constraint("Vertical", 14),
    Sketcher.Constraint("Horizontal", 15),
    Sketcher.Constraint("Vertical", 16),
    Sketcher.Constraint("Horizontal", 17),
    Sketcher.Constraint("Vertical", 18),
    Sketcher.Constraint("Horizontal", 19),
    Sketcher.Constraint("Vertical", 20),
    Sketcher.Constraint("Horizontal", 21),
    Sketcher.Constraint("Vertical", 23),
    Sketcher.Constraint("Horizontal", 25),
    Sketcher.Constraint("Vertical", 26),
    Sketcher.Constraint("Horizontal", 27),
    Sketcher.Constraint("Horizontal", 28),
    Sketcher.Constraint("Vertical", 29),
    Sketcher.Constraint("Horizontal", 30),
    Sketcher.Constraint("Vertical", 31),
    Sketcher.Constraint("Horizontal", 32),
    Sketcher.Constraint("Vertical", 33),
    Sketcher.Constraint("Horizontal", 34),
    Sketcher.Constraint("Vertical", 36),
    Sketcher.Constraint("Horizontal", 38),
    Sketcher.Constraint("Vertical", 39),
    Sketcher.Constraint("Horizontal", 40),
    Sketcher.Constraint("Vertical", 41),
    Sketcher.Constraint("Vertical", 42),
    Sketcher.Constraint("Horizontal", 43),
    Sketcher.Constraint("Vertical", 44),
    Sketcher.Constraint("Horizontal", 45),
    Sketcher.Constraint("Vertical", 46),
    Sketcher.Constraint("Horizontal", 47),
    Sketcher.Constraint("Vertical", 48),
    Sketcher.Constraint("Horizontal", 49),
    Sketcher.Constraint("Vertical", 51),
    Sketcher.Constraint("Horizontal", 53),
    Sketcher.Constraint("Vertical", 54),
    Sketcher.Constraint("Horizontal", 55),
    Sketcher.Constraint("Equal", 7, 9),
    Sketcher.Constraint("Equal", 9, 22),
    Sketcher.Constraint("Equal", 22, 24),
    Sketcher.Constraint("Equal", 24, 35),
    Sketcher.Constraint("Equal", 35, 37),
    Sketcher.Constraint("Equal", 37, 50),
    Sketcher.Constraint("Equal", 50, 52),
    Sketcher.Constraint("Symmetric", 7, 3, 35, 3, -1, 1),
    Sketcher.Constraint("Symmetric", 22, 3, 50, 3, -1, 1),
    Sketcher.Constraint("Symmetric", 0, 2, 28, 2, -1, 1),
    Sketcher.Constraint("Symmetric", 2, 2, 30, 2, -1, 1),
    Sketcher.Constraint("Symmetric", 4, 2, 32, 2, -1, 1),
    Sketcher.Constraint("Symmetric", 10, 2, 38, 2, -1, 1),
    Sketcher.Constraint("Symmetric", 12, 2, 40, 2, -1, 1),
    Sketcher.Constraint("Symmetric", 14, 2, 42, 2, -1, 1),
    Sketcher.Constraint("Symmetric", 16, 2, 44, 2, -1, 1),
    Sketcher.Constraint("Symmetric", 18, 2, 46, 2, -1, 1),
    Sketcher.Constraint("Symmetric", 25, 2, 53, 2, -1, 1),
    Sketcher.Constraint("Symmetric", 9, 3, 22, 3, -2),
    Sketcher.Constraint("Symmetric", 2, 2, 14, 2, -2),
    Sketcher.Constraint("Symmetric", 0, 2, 16, 2, -2),
    Sketcher.Constraint("Symmetric", 12, 2, 18, 2, -2),
    Sketcher.Constraint("Symmetric", 5, 2, 25, 2, -2),
    Sketcher.Constraint("Horizontal", 2, 2, 5, 2),
    Sketcher.Constraint("Horizontal", 0, 2, 9, 1),
    Sketcher.Constraint("Horizontal", 4, 2, 26, 2),
    Sketcher.Constraint("Horizontal", 32, 2, 54, 2),
    Sketcher.Constraint("Vertical", 5, 2, 10, 2),
    Sketcher.Constraint("Vertical", 3, 2, 12, 2),
    Sketcher.Constraint("Vertical", 20, 2, 25, 2),
    Sketcher.Constraint("Vertical", 11, 2, 47, 2),
    Sketcher.Constraint("Equal", 5, 11),
    Sketcher.Constraint("Radius", 7, Q("1 mm")),
    Sketcher.Constraint("DistanceX", 0, 2, 0, 1, Q("4 mm")),
    Sketcher.Constraint("DistanceY", 1, 1, 1, 2, Q("3 mm")),
    Sketcher.Constraint("DistanceY", 3, 1, 3, 2, Q("1.3 mm")),
    Sketcher.Constraint("DistanceX", 7, 3, -1, 1, Q("59 mm")),
    Sketcher.Constraint("DistanceX", 0, 2, -1, 1, Q("70 mm")),
    Sketcher.Constraint("DistanceX", 4, 1, 4, 2, Q("2.27 mm")),
    Sketcher.Constraint("DistanceY", -1, 1, 7, 3, Q("33.5 mm")),
])
sketch4.setExpression("Constraints[136]", "Params.sketch4_radius")
sketch4.setExpression("Constraints[137]", "Params.sketch4_width")
sketch4.setExpression("Constraints[138]", "Params.sketch4_height")
sketch4.setExpression("Constraints[139]", "Params.sketch4_height2")
sketch4.setExpression("Constraints[142]", "Params.sketch4_width2")
pocket2 = body.newObject("PartDesign::Pocket", "Pocket001")
pocket2.Profile = sketch4
pocket2.Type = "ThroughAll"
pocket2.Reversed = True

sketch5 = body.newObject("Sketcher::SketchObject", "Sketch004")
sketch5.AttachmentSupport = (doc.getObject("XZ_Plane"), [""])
sketch5.MapMode = "FlatFace"
sketch5.AttachmentOffset = App.Placement(V(0, 0, 1.5), App.Rotation())
sketch5.addGeometry([
    Part.Circle(V(-60.5, 18.8, 0), V(0, 0, 1), 1.5),
    Part.Circle(V(-23, 18.8, 0), V(0, 0, 1), 1.5),
    Part.Circle(V(-60.5, -18.8, 0), V(0, 0, 1), 1.5),
    Part.Circle(V(-23, -18.8, 0), V(0, 0, 1), 1.5),
], False)
sketch5.addConstraint([
    Sketcher.Constraint("Equal", 0, 1),
    Sketcher.Constraint("Equal", 1, 2),
    Sketcher.Constraint("Equal", 2, 3),
    Sketcher.Constraint("Symmetric", 0, 3, 2, 3, -1),
    Sketcher.Constraint("Symmetric", 1, 3, 3, 3, -1),
    Sketcher.Constraint("Horizontal", 0, 3, 1, 3),
    Sketcher.Constraint("Diameter", 0, Q("3 mm")),
    Sketcher.Constraint("DistanceX", 1, 3, -1, 1, Q("23 mm")),
    Sketcher.Constraint("DistanceX", 0, 3, -1, 1, Q("60.5 mm")),
    Sketcher.Constraint("DistanceY", 2, 3, 0, 3, Q("37.5 mm")),
])
sketch5.setExpression("Constraints[6]", "Params.sketch5_diameter")
pocket3 = body.newObject("PartDesign::Pocket", "Pocket002")
pocket3.Profile = sketch5
pocket3.Type = "ThroughAll"
pocket3.Midplane = True

sketch6 = body.newObject("Sketcher::SketchObject", "Sketch005")
sketch6.AttachmentSupport = (doc.getObject("XZ_Plane"), [""])
sketch6.MapMode = "FlatFace"
sketch6.AttachmentOffset = App.Placement(V(0, 0, -1.5), App.Rotation())
sketch6.addGeometry([
    Part.Circle(V(16.5, 0, 0), V(0, 0, 1), 1.5),
    Part.Circle(V(22.5, 0, 0), V(0, 0, 1), 1.5),
], False)
sketch6.addConstraint([
    Sketcher.Constraint("Equal", 0, 1),
    Sketcher.Constraint("PointOnObject", 0, 3, -1),
    Sketcher.Constraint("PointOnObject", 1, 3, -1),
    Sketcher.Constraint("Diameter", 0, Q("3 mm")),
    Sketcher.Constraint("DistanceX", 0, 3, 1, 3, Q("6 mm")),
    Sketcher.Constraint("DistanceX", -1, 1, 0, 3, Q("16.5 mm")),
])
sketch6.setExpression("Constraints[3]", "Params.sketch6_diameter")
pocket4 = body.newObject("PartDesign::Pocket", "Pocket003")
pocket4.Profile = sketch6
pocket4.Type = "ThroughAll"
pocket4.Midplane = True

sketch7 = body.newObject("Sketcher::SketchObject", "Sketch006")
sketch7.AttachmentSupport = (doc.getObject("XZ_Plane"), [""])
sketch7.MapMode = "FlatFace"
sketch7.addGeometry([
    Part.LineSegment(V(-20.2, -33, 0), V(-42.8, -33, 0)),
    Part.ArcOfCircle(Part.Circle(V(-42.8, -31.5, 0), V(0, 0, 1), 1.5), math.radians(180), math.radians(270)),
    Part.LineSegment(V(-44.3, -31.5, 0), V(-44.3, -26.8, 0)),
    Part.ArcOfCircle(Part.Circle(V(-42.8, -26.7, 0), V(0, 0, 1), 1.5), math.radians(90), math.radians(180)),
    Part.LineSegment(V(-42.8, -25.2, 0), V(-20.2, -25.2, 0)),
    Part.ArcOfCircle(Part.Circle(V(-20.2, -26.7, 0), V(0, 0, 1), 1.5), math.radians(0), math.radians(90)),
    Part.LineSegment(V(-18.7, -26.8, 0), V(-18.7, -31.5, 0)),
    Part.ArcOfCircle(Part.Circle(V(-20.2, -31.5, 0), V(0, 0, 1), 1.5), math.radians(-90), math.radians(0)),
    Part.LineSegment(V(62.7, -26.2, 0), V(56.7, -26.2, 0)),
    Part.ArcOfCircle(Part.Circle(V(56.7, -25.2, 0), V(0, 0, 1), 1), math.radians(-180), math.radians(-90)),
    Part.LineSegment(V(55.7, -25.2, 0), V(55.7, -21, 0)),
    Part.ArcOfCircle(Part.Circle(V(56.7, -21, 0), V(0, 0, 1), 1), math.radians(90), math.radians(180)),
    Part.LineSegment(V(56.7, -20, 0), V(62.7, -20, 0)),
    Part.ArcOfCircle(Part.Circle(V(62.7, -21, 0), V(0, 0, 1), 1), math.radians(0), math.radians(90)),
    Part.LineSegment(V(63.7, -21, 0), V(63.7, -25.2, 0)),
    Part.ArcOfCircle(Part.Circle(V(62.7, -25.2, 0), V(0, 0, 1), 1), math.radians(-90), math.radians(0)),
    Part.LineSegment(V(63.7, 25.2, 0), V(63.7, 21, 0)),
    Part.ArcOfCircle(Part.Circle(V(62.7, 21, 0), V(0, 0, 1), 1), math.radians(-90), math.radians(0)),
    Part.LineSegment(V(62.7, 20, 0), V(56.7, 20, 0)),
    Part.ArcOfCircle(Part.Circle(V(56.7, 21, 0), V(0, 0, 1), 1), math.radians(-180), math.radians(-90)),
    Part.LineSegment(V(55.7, 21, 0), V(55.7, 25.2, 0)),
    Part.ArcOfCircle(Part.Circle(V(56.7, 25.2, 0), V(0, 0, 1), 1), math.radians(90), math.radians(180)),
    Part.LineSegment(V(56.7, 26.2, 0), V(62.7, 26.2, 0)),
    Part.ArcOfCircle(Part.Circle(V(62.7, 25.2, 0), V(0, 0, 1), 1), math.radians(0), math.radians(90)),
    Part.LineSegment(V(18.7, -31.5, 0), V(18.7, -26.8, 0)),
    Part.ArcOfCircle(Part.Circle(V(20.2, -26.7, 0), V(0, 0, 1), 1.5), math.radians(90), math.radians(180)),
    Part.LineSegment(V(20.2, -25.2, 0), V(42.8, -25.2, 0)),
    Part.ArcOfCircle(Part.Circle(V(42.8, -26.7, 0), V(0, 0, 1), 1.5), math.radians(0), math.radians(90)),
    Part.LineSegment(V(44.3, -26.8, 0), V(44.3, -31.5, 0)),
    Part.ArcOfCircle(Part.Circle(V(42.8, -31.5, 0), V(0, 0, 1), 1.5), math.radians(-90), math.radians(0)),
    Part.LineSegment(V(42.8, -33, 0), V(20.2, -33, 0)),
    Part.ArcOfCircle(Part.Circle(V(20.2, -31.5, 0), V(0, 0, 1), 1.5), math.radians(180), math.radians(270)),
    Part.LineSegment(V(20.2, 33, 0), V(42.8, 33, 0)),
    Part.ArcOfCircle(Part.Circle(V(42.8, 31.5, 0), V(0, 0, 1), 1.5), math.radians(0), math.radians(90)),
    Part.LineSegment(V(44.3, 31.5, 0), V(44.3, 26.8, 0)),
    Part.ArcOfCircle(Part.Circle(V(42.8, 26.7, 0), V(0, 0, 1), 1.5), math.radians(-90), math.radians(0)),
    Part.LineSegment(V(42.8, 25.2, 0), V(20.2, 25.2, 0)),
    Part.ArcOfCircle(Part.Circle(V(20.2, 26.7, 0), V(0, 0, 1), 1.5), math.radians(180), math.radians(270)),
    Part.LineSegment(V(18.7, 26.8, 0), V(18.7, 31.5, 0)),
    Part.ArcOfCircle(Part.Circle(V(20.2, 31.5, 0), V(0, 0, 1), 1.5), math.radians(90), math.radians(180)),
    Part.LineSegment(V(-18.7, 31.5, 0), V(-18.7, 26.8, 0)),
    Part.ArcOfCircle(Part.Circle(V(-20.2, 26.7, 0), V(0, 0, 1), 1.5), math.radians(-90), math.radians(0)),
    Part.LineSegment(V(-20.2, 25.2, 0), V(-42.8, 25.2, 0)),
    Part.ArcOfCircle(Part.Circle(V(-42.8, 26.7, 0), V(0, 0, 1), 1.5), math.radians(180), math.radians(270)),
    Part.LineSegment(V(-44.3, 26.8, 0), V(-44.3, 31.5, 0)),
    Part.ArcOfCircle(Part.Circle(V(-42.8, 31.5, 0), V(0, 0, 1), 1.5), math.radians(90), math.radians(180)),
    Part.LineSegment(V(-42.8, 33, 0), V(-20.2, 33, 0)),
    Part.ArcOfCircle(Part.Circle(V(-20.2, 31.5, 0), V(0, 0, 1), 1.5), math.radians(0), math.radians(90)),
], False)
sketch7.addConstraint([
    Sketcher.Constraint("Tangent", 0, 2, 1, 2),
    Sketcher.Constraint("Tangent", 1, 1, 2, 1),
    Sketcher.Constraint("Tangent", 2, 2, 3, 2),
    Sketcher.Constraint("Tangent", 3, 1, 4, 1),
    Sketcher.Constraint("Tangent", 4, 2, 5, 2),
    Sketcher.Constraint("Tangent", 5, 1, 6, 1),
    Sketcher.Constraint("Tangent", 6, 2, 7, 2),
    Sketcher.Constraint("Tangent", 7, 1, 0, 1),
    Sketcher.Constraint("Tangent", 8, 2, 9, 2),
    Sketcher.Constraint("Tangent", 9, 1, 10, 1),
    Sketcher.Constraint("Tangent", 10, 2, 11, 2),
    Sketcher.Constraint("Tangent", 11, 1, 12, 1),
    Sketcher.Constraint("Tangent", 12, 2, 13, 2),
    Sketcher.Constraint("Tangent", 13, 1, 14, 1),
    Sketcher.Constraint("Tangent", 14, 2, 15, 2),
    Sketcher.Constraint("Tangent", 15, 1, 8, 1),
    Sketcher.Constraint("Tangent", 16, 2, 17, 2),
    Sketcher.Constraint("Tangent", 17, 1, 18, 1),
    Sketcher.Constraint("Tangent", 18, 2, 19, 2),
    Sketcher.Constraint("Tangent", 19, 1, 20, 1),
    Sketcher.Constraint("Tangent", 20, 2, 21, 2),
    Sketcher.Constraint("Tangent", 21, 1, 22, 1),
    Sketcher.Constraint("Tangent", 22, 2, 23, 2),
    Sketcher.Constraint("Tangent", 23, 1, 16, 1),
    Sketcher.Constraint("Tangent", 24, 2, 25, 2),
    Sketcher.Constraint("Tangent", 25, 1, 26, 1),
    Sketcher.Constraint("Tangent", 26, 2, 27, 2),
    Sketcher.Constraint("Tangent", 27, 1, 28, 1),
    Sketcher.Constraint("Tangent", 28, 2, 29, 2),
    Sketcher.Constraint("Tangent", 29, 1, 30, 1),
    Sketcher.Constraint("Tangent", 30, 2, 31, 2),
    Sketcher.Constraint("Tangent", 31, 1, 24, 1),
    Sketcher.Constraint("Tangent", 32, 2, 33, 2),
    Sketcher.Constraint("Tangent", 33, 1, 34, 1),
    Sketcher.Constraint("Tangent", 34, 2, 35, 2),
    Sketcher.Constraint("Tangent", 35, 1, 36, 1),
    Sketcher.Constraint("Tangent", 36, 2, 37, 2),
    Sketcher.Constraint("Tangent", 37, 1, 38, 1),
    Sketcher.Constraint("Tangent", 38, 2, 39, 2),
    Sketcher.Constraint("Tangent", 39, 1, 32, 1),
    Sketcher.Constraint("Tangent", 40, 2, 41, 2),
    Sketcher.Constraint("Tangent", 41, 1, 42, 1),
    Sketcher.Constraint("Tangent", 42, 2, 43, 2),
    Sketcher.Constraint("Tangent", 43, 1, 44, 1),
    Sketcher.Constraint("Tangent", 44, 2, 45, 2),
    Sketcher.Constraint("Tangent", 45, 1, 46, 1),
    Sketcher.Constraint("Tangent", 46, 2, 47, 2),
    Sketcher.Constraint("Tangent", 47, 1, 40, 1),
    Sketcher.Constraint("Horizontal", 0),
    Sketcher.Constraint("Vertical", 2),
    Sketcher.Constraint("Horizontal", 4),
    Sketcher.Constraint("Vertical", 6),
    Sketcher.Constraint("Horizontal", 8),
    Sketcher.Constraint("Vertical", 10),
    Sketcher.Constraint("Horizontal", 12),
    Sketcher.Constraint("Vertical", 14),
    Sketcher.Constraint("Vertical", 16),
    Sketcher.Constraint("Horizontal", 18),
    Sketcher.Constraint("Vertical", 20),
    Sketcher.Constraint("Horizontal", 22),
    Sketcher.Constraint("Vertical", 24),
    Sketcher.Constraint("Horizontal", 26),
    Sketcher.Constraint("Vertical", 28),
    Sketcher.Constraint("Horizontal", 30),
    Sketcher.Constraint("Horizontal", 32),
    Sketcher.Constraint("Vertical", 34),
    Sketcher.Constraint("Horizontal", 36),
    Sketcher.Constraint("Vertical", 38),
    Sketcher.Constraint("Vertical", 40),
    Sketcher.Constraint("Horizontal", 42),
    Sketcher.Constraint("Vertical", 44),
    Sketcher.Constraint("Horizontal", 46),
    Sketcher.Constraint("Equal", 1, 3),
    Sketcher.Constraint("Equal", 3, 5),
    Sketcher.Constraint("Equal", 5, 7),
    Sketcher.Constraint("Equal", 9, 11),
    Sketcher.Constraint("Equal", 11, 13),
    Sketcher.Constraint("Equal", 13, 15),
    Sketcher.Constraint("Equal", 15, 17),
    Sketcher.Constraint("Equal", 17, 19),
    Sketcher.Constraint("Equal", 19, 21),
    Sketcher.Constraint("Equal", 21, 23),
    Sketcher.Constraint("Equal", 7, 25),
    Sketcher.Constraint("Equal", 25, 27),
    Sketcher.Constraint("Equal", 27, 29),
    Sketcher.Constraint("Equal", 29, 31),
    Sketcher.Constraint("Equal", 31, 33),
    Sketcher.Constraint("Equal", 33, 35),
    Sketcher.Constraint("Equal", 35, 37),
    Sketcher.Constraint("Equal", 37, 39),
    Sketcher.Constraint("Equal", 39, 41),
    Sketcher.Constraint("Equal", 41, 43),
    Sketcher.Constraint("Equal", 43, 45),
    Sketcher.Constraint("Equal", 45, 47),
    Sketcher.Constraint("Symmetric", 1, 3, 33, 3, -1, 1),
    Sketcher.Constraint("Symmetric", 5, 3, 37, 3, -1, 1),
    Sketcher.Constraint("Symmetric", 25, 3, 41, 3, -1, 1),
    Sketcher.Constraint("Symmetric", 29, 3, 45, 3, -1, 1),
    Sketcher.Constraint("Symmetric", 5, 3, 25, 3, -2),
    Sketcher.Constraint("Symmetric", 1, 3, 29, 3, -2),
    Sketcher.Constraint("Symmetric", 13, 3, 17, 3, -1),
    Sketcher.Constraint("Symmetric", 9, 3, 21, 3, -1),
    Sketcher.Constraint("Radius", 9, Q("1 mm")),
    Sketcher.Constraint("Radius", 1, Q("1.5 mm")),
    Sketcher.Constraint("DistanceX", 8, 2, 8, 1, Q("6 mm")),
    Sketcher.Constraint("DistanceX", 0, 2, 0, 1, Q("22.6 mm")),
    Sketcher.Constraint("DistanceY", 10, 1, 10, 2, Q("4.2 mm")),
    Sketcher.Constraint("DistanceY", 11, 3, -1, 1, Q("21 mm")),
    Sketcher.Constraint("DistanceY", 0, 2, -1, 1, Q("33 mm")),
    Sketcher.Constraint("DistanceY", 2, 1, 2, 2, Q("4.75 mm")),
    Sketcher.Constraint("DistanceX", 1, 3, -1, 1, Q("42.8 mm")),
    Sketcher.Constraint("DistanceX", -1, 1, 9, 3, Q("56.73 mm")),
])
sketch7.setExpression("Constraints[102]", "Params.sketch7_radius")
sketch7.setExpression("Constraints[103]", "Params.sketch7_radius2")
sketch7.setExpression("Constraints[104]", "Params.sketch7_width")
sketch7.setExpression("Constraints[105]", "Params.sketch7_width2")
sketch7.setExpression("Constraints[106]", "Params.sketch7_height")
pocket5 = body.newObject("PartDesign::Pocket", "Pocket004")
pocket5.Profile = sketch7
pocket5.Type = "ThroughAll"
pocket5.Midplane = True

doc.recompute()
